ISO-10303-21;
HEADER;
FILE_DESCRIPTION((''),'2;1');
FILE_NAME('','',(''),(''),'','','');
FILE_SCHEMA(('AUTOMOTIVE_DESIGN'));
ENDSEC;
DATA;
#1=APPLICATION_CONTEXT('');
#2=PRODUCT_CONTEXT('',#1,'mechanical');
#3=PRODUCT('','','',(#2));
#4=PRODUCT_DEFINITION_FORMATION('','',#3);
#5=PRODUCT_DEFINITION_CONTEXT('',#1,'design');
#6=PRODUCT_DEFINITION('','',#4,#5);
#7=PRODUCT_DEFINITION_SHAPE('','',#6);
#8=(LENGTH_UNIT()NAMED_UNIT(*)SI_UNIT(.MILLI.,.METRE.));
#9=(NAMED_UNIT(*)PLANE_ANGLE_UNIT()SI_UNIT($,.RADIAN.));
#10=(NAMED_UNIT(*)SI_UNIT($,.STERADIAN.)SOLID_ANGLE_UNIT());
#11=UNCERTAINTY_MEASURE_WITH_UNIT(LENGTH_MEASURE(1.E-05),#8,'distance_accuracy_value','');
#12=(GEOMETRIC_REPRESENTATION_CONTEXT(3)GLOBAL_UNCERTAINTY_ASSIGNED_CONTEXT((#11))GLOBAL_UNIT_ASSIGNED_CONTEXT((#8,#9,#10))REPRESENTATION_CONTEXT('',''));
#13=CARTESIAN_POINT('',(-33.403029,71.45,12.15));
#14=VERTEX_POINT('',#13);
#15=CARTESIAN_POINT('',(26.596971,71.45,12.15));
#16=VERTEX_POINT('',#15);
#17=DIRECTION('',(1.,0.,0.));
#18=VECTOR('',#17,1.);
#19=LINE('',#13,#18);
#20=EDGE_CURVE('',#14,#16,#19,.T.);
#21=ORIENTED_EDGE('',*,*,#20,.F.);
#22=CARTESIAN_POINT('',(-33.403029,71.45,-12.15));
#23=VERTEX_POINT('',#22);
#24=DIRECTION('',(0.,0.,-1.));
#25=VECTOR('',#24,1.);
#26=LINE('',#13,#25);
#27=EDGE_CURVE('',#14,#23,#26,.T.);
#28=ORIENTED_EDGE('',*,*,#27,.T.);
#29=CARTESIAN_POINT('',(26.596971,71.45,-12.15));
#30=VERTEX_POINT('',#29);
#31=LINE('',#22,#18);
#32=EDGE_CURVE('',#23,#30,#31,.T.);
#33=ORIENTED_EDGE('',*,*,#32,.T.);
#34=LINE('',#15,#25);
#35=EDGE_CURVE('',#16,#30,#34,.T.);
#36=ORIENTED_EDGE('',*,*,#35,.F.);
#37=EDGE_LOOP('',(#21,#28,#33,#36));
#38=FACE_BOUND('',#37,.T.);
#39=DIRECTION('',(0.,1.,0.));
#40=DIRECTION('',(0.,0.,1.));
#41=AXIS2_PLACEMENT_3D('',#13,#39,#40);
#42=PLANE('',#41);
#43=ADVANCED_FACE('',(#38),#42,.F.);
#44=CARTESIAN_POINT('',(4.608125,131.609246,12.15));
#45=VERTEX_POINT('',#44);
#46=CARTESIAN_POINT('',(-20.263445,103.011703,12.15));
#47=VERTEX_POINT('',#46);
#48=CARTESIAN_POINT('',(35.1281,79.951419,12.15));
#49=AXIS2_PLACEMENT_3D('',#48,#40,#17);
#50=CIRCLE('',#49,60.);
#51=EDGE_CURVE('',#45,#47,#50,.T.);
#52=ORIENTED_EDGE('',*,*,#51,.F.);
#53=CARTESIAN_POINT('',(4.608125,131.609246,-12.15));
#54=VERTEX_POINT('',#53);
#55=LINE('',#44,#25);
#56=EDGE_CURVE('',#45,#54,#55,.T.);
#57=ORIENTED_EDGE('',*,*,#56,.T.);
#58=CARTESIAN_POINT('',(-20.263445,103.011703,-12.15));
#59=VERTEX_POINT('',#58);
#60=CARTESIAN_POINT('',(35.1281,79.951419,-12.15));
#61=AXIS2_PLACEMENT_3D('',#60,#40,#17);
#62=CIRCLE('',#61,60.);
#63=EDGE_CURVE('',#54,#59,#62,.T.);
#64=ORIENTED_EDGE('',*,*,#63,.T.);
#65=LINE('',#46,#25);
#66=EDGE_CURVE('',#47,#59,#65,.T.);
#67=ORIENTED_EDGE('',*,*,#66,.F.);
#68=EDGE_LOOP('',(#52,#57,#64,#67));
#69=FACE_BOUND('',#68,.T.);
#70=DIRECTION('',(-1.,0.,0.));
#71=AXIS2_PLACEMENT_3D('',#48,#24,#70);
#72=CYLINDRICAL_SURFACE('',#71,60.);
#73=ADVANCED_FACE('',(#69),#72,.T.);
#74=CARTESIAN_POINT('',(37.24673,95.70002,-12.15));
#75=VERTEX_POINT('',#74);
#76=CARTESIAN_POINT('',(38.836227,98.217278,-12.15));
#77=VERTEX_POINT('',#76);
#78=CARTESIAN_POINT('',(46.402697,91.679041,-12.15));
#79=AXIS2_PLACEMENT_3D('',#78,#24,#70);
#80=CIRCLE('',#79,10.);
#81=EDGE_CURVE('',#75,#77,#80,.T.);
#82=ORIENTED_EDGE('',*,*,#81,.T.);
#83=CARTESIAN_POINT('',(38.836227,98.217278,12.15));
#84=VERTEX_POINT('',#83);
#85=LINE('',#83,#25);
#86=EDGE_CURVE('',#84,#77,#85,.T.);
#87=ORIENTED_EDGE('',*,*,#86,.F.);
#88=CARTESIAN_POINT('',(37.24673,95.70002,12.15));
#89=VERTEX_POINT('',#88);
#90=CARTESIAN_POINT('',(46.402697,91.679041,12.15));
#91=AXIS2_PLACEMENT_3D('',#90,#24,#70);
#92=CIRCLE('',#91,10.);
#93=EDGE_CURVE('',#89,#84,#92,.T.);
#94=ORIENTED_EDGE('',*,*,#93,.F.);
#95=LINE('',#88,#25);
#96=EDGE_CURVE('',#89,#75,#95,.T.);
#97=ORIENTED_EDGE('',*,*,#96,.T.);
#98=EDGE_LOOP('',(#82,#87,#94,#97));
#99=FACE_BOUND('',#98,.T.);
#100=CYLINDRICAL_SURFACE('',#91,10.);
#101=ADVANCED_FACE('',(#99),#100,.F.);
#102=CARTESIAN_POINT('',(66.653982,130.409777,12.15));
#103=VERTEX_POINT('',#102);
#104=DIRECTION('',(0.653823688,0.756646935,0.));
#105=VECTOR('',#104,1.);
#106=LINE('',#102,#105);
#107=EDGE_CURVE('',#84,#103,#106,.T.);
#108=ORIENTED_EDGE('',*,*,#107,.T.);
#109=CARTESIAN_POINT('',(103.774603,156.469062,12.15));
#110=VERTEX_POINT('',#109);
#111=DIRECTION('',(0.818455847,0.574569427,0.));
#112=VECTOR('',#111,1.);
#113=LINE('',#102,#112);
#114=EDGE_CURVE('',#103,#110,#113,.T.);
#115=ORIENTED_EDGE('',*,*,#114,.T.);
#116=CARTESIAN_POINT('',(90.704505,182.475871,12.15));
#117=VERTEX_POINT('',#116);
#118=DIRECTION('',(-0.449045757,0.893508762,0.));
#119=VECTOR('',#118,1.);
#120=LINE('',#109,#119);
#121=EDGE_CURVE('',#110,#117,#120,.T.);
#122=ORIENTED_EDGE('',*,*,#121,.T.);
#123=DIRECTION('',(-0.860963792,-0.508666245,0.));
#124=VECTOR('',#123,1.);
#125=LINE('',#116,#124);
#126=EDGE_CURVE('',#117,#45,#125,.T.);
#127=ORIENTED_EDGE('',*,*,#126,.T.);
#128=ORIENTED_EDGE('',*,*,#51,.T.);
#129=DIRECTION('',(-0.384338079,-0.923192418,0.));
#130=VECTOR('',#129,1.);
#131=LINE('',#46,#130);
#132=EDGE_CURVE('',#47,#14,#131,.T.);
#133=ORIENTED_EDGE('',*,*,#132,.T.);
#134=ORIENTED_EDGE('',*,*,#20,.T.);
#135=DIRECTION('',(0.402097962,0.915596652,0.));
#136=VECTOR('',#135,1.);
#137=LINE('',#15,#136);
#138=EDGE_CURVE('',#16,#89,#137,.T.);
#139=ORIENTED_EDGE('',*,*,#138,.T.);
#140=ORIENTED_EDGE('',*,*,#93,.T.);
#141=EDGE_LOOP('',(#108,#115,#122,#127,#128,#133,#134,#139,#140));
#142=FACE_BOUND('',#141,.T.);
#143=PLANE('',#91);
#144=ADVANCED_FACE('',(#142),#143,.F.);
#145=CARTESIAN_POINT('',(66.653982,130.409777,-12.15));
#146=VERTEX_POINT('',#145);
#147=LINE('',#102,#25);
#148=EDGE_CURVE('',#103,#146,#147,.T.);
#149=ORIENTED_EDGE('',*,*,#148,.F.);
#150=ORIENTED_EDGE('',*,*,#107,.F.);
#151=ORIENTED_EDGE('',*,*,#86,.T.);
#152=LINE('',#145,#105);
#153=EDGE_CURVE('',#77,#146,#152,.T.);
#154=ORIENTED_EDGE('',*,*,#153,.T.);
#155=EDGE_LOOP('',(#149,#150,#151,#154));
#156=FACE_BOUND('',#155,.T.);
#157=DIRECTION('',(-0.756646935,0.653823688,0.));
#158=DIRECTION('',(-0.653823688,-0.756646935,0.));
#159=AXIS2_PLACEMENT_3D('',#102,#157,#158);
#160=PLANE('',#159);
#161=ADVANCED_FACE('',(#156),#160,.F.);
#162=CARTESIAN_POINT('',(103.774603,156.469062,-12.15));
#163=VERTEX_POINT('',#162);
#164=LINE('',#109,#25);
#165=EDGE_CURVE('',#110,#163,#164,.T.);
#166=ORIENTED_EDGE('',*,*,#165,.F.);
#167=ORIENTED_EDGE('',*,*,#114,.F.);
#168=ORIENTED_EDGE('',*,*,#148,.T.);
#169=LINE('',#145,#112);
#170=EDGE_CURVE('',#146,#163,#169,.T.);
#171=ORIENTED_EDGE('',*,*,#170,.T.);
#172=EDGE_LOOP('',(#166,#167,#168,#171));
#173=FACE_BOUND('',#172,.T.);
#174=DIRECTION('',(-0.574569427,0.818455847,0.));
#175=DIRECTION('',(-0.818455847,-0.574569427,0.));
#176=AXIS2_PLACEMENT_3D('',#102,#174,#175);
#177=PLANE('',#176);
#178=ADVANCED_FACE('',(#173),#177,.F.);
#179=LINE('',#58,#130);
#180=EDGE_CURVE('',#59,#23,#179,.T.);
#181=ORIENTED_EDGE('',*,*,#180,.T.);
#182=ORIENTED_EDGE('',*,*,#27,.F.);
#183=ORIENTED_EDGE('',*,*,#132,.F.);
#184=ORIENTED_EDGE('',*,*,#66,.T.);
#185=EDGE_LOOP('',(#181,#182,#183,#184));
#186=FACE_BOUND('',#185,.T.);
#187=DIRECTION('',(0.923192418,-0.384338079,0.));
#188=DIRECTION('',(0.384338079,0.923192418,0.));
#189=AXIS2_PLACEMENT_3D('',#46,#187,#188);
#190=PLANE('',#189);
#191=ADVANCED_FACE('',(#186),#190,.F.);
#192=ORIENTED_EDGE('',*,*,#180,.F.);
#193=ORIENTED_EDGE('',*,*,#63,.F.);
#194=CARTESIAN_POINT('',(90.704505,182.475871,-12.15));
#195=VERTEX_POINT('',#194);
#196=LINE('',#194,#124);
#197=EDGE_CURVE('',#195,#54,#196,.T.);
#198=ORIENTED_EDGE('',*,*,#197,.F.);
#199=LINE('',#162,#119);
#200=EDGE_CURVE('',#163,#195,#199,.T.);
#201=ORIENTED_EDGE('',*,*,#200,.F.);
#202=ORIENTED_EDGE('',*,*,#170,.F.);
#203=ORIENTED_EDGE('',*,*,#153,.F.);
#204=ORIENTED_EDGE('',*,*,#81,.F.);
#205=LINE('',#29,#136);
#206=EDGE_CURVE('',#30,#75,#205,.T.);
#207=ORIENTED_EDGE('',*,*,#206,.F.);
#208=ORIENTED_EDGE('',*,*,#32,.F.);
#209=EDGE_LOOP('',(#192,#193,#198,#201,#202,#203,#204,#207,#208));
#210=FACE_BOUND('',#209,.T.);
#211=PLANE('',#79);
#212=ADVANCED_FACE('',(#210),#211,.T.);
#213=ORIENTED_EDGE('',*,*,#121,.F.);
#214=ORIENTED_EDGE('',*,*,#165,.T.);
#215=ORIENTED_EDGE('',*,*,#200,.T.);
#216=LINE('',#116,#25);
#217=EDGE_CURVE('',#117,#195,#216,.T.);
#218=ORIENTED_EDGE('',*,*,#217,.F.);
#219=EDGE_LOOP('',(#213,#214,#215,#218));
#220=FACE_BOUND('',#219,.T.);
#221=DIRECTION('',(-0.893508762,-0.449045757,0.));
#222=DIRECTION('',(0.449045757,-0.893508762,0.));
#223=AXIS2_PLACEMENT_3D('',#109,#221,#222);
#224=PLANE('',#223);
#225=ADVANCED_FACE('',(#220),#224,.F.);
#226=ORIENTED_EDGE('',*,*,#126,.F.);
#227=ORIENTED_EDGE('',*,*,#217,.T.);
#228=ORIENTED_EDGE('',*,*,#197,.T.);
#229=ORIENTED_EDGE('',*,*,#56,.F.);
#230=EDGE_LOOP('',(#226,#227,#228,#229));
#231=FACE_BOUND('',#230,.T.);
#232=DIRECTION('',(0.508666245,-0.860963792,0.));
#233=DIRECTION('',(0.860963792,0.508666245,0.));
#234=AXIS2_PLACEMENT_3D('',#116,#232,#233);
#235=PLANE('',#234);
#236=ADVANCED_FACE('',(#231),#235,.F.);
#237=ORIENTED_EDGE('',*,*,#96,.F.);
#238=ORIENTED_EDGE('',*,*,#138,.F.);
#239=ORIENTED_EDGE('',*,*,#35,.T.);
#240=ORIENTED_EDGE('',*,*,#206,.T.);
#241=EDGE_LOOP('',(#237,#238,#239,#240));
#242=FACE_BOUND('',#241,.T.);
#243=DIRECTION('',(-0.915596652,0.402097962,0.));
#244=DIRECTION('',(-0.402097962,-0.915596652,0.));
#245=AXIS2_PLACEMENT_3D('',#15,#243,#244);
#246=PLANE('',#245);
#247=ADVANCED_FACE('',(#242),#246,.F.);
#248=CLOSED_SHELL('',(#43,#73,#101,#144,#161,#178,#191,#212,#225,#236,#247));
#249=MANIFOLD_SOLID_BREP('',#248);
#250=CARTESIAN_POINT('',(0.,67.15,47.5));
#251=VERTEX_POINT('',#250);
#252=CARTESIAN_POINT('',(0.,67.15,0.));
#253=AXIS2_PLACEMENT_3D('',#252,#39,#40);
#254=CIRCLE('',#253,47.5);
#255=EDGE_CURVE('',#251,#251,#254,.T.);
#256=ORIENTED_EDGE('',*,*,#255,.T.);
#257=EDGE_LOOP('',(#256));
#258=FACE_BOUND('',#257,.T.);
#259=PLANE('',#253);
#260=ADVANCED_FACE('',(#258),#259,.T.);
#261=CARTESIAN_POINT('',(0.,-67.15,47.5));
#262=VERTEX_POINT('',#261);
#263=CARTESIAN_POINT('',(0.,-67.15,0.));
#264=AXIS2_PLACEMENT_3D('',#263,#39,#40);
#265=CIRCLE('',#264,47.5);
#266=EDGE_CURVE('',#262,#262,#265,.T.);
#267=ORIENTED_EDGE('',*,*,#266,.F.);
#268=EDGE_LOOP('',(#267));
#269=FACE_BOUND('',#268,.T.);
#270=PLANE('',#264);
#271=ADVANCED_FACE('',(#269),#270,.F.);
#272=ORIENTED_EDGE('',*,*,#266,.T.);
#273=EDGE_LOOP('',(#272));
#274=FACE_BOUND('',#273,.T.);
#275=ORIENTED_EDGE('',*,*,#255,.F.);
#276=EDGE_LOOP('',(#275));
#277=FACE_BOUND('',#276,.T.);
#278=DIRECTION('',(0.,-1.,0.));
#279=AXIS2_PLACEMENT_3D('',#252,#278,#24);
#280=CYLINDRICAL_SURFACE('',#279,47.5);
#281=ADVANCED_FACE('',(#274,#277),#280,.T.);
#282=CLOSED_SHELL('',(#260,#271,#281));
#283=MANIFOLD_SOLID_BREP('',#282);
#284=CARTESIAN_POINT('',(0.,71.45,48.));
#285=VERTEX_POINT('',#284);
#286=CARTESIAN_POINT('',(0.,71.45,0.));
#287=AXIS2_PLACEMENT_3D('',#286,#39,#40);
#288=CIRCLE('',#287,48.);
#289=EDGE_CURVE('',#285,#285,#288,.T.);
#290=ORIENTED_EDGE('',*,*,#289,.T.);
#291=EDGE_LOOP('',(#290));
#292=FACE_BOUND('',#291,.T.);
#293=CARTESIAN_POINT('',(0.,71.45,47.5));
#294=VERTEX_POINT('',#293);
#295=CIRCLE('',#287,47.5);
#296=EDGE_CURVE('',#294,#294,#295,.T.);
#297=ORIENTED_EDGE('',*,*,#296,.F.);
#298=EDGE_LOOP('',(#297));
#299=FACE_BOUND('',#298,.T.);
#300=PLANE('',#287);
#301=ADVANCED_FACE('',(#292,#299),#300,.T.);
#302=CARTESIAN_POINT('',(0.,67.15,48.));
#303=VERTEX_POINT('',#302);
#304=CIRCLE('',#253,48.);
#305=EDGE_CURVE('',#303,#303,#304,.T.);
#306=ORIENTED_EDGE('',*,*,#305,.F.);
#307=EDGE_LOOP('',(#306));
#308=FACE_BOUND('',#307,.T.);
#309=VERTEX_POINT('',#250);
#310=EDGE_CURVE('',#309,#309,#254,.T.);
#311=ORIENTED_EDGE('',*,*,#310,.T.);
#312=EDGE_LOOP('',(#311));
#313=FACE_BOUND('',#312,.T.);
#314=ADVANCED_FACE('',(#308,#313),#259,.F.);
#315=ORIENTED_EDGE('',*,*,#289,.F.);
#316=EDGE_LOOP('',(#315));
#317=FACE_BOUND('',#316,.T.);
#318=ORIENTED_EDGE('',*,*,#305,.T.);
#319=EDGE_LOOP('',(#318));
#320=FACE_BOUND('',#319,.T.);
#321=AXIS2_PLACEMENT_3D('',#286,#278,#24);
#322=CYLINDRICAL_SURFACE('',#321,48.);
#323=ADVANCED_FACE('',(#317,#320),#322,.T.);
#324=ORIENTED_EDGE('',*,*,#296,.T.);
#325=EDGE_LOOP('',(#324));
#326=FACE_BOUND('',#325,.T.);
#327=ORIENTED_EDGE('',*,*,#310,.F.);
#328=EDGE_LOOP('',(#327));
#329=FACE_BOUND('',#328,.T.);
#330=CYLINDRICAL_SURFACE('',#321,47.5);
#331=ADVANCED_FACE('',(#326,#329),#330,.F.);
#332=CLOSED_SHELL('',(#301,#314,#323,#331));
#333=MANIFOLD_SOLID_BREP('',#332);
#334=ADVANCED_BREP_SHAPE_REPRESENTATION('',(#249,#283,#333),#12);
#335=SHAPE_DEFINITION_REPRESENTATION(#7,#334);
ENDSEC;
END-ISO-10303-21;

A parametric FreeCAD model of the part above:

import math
import FreeCAD as App
import Part
import Sketcher

V = App.Vector

doc = App.newDocument("Part")
body = doc.addObject("PartDesign::Body", "Body")

# Sketch on XZ plane
sketch1 = doc.addObject("Sketcher::SketchObject", "Sketch")
body.addObject(sketch1)
sketch1.AttachmentSupport = (doc.XZ_Plane, [""])
sketch1.MapMode = "FlatFace"
sketch1.addGeometry(Part.Circle(V(0, 0, 0), V(0, 0, 1), 48), False)
sketch1.addConstraint([
    Sketcher.Constraint("Coincident", 0, 3, -1, 1),
    Sketcher.Constraint("Diameter", 0, 95.0),
])
pad1 = doc.addObject("PartDesign::Pad", "Pad")
body.addObject(pad1)
pad1.Profile = sketch1
pad1.Length = 134.3
pad1.Midplane = True
body2 = doc.addObject("PartDesign::Body", "Body001")

# Sketch on XZ plane
sketch2 = doc.addObject("Sketcher::SketchObject", "Sketch001")
body2.addObject(sketch2)
sketch2.AttachmentSupport = (doc.getObject("XZ_Plane001"), [""])
sketch2.MapMode = "FlatFace"
sketch2.AttachmentOffset = App.Placement(V(0, 0, -67.15), App.Rotation())
sketch2.addGeometry([
    Part.Circle(V(0, 0, 0), V(0, 0, 1), 48),
    Part.Circle(V(0, 0, 0), V(0, 0, 1), 48),
], False)
sketch2.addConstraint([
    Sketcher.Constraint("Coincident", 0, 3, -1, 1),
    Sketcher.Constraint("Coincident", 1, 3, -1, 1),
    Sketcher.Constraint("Diameter", 0, 96.0),
    Sketcher.Constraint("Diameter", 1, 95.0),
])
pad2 = doc.addObject("PartDesign::Pad", "Pad001")
body2.addObject(pad2)
pad2.Profile = sketch2
pad2.Length = 4.3
pad2.Reversed = True
body3 = doc.addObject("PartDesign::Body", "Body002")

# Sketch on XY plane
sketch3 = doc.addObject("Sketcher::SketchObject", "Sketch002")
body3.addObject(sketch3)
sketch3.AttachmentSupport = (doc.getObject("XY_Plane002"), [""])
sketch3.MapMode = "FlatFace"
sketch3.addGeometry([
    Part.LineSegment(V(103.8, 156.5, 0), V(90.7, 182.5, 0)),  # 0
    Part.LineSegment(V(90.7, 182.5, 0), V(4.6, 131.6, 0)),  # 1
    Part.ArcOfCircle(Part.Circle(V(35.1, 80, 0), V(0, 0, 1), 60), math.radians(121), math.radians(157)),  # 2
    Part.LineSegment(V(-20.3, 103, 0), V(-33.4, 71.5, 0)),  # 3
    Part.LineSegment(V(-33.4, 71.5, 0), V(26.6, 71.5, 0)),  # 4
    Part.LineSegment(V(26.6, 71.5, 0), V(37.2, 95.7, 0)),  # 5
    Part.ArcOfCircle(Part.Circle(V(46.4, 91.7, 0), V(0, 0, 1), 10), math.radians(139.17), math.radians(156.29)),  # 6
    Part.LineSegment(V(38.8, 98.2, 0), V(66.7, 130.4, 0)),  # 7
    Part.LineSegment(V(66.7, 130.4, 0), V(103.8, 156.5, 0)),  # 8
], False)
sketch3.addConstraint([
    Sketcher.Constraint("Coincident", 0, 2, 1, 1),
    Sketcher.Constraint("Tangent", 1, 2, 2, 1),
    Sketcher.Constraint("Tangent", 2, 2, 3, 1),
    Sketcher.Constraint("Coincident", 3, 2, 4, 1),
    Sketcher.Constraint("Coincident", 4, 2, 5, 1),
    Sketcher.Constraint("Tangent", 5, 2, 6, 2),
    Sketcher.Constraint("Tangent", 6, 1, 7, 1),
    Sketcher.Constraint("Coincident", 7, 2, 8, 1),
    Sketcher.Constraint("Coincident", 8, 2, 0, 1),
    Sketcher.Constraint("Horizontal", 4),
    Sketcher.Constraint("Radius", 2, 60.0),
    Sketcher.Constraint("Radius", 6, 10.0),
    Sketcher.Constraint("DistanceX", 4, 1, 4, 2, 60.0),
    Sketcher.Constraint("Distance", 1, 100.0),
    Sketcher.Constraint("DistanceY", -1, 1, 3, 2, 71.45),
    Sketcher.Constraint("DistanceX", -1, 1, 2, 3, 35.1281),
    Sketcher.Constraint("DistanceY", 2, 3, 5, 2, 15.748602),
    Sketcher.Constraint("DistanceX", 1, 2, 6, 1, 34.228102),
    Sketcher.Constraint("DistanceY", 6, 1, 7, 2, 32.192499),
    Sketcher.Constraint("DistanceX", 0, 2, 8, 2, 13.070098),
    Sketcher.Constraint("DistanceY", -1, 1, 2, 3, 79.951419),
    Sketcher.Constraint("DistanceY", -1, 1, 6, 3, 91.679041),
    Sketcher.Constraint("DistanceY", -1, 1, 0, 2, 182.475871),
    Sketcher.Constraint("DistanceX", 3, 2, -1, 1, 33.403029),
    Sketcher.Constraint("DistanceY", -1, 1, 8, 2, 156.469062),
])
pad3 = doc.addObject("PartDesign::Pad", "Pad002")
body3.addObject(pad3)
pad3.Profile = sketch3
pad3.Length = 24.3
pad3.Midplane = True

doc.recompute()
